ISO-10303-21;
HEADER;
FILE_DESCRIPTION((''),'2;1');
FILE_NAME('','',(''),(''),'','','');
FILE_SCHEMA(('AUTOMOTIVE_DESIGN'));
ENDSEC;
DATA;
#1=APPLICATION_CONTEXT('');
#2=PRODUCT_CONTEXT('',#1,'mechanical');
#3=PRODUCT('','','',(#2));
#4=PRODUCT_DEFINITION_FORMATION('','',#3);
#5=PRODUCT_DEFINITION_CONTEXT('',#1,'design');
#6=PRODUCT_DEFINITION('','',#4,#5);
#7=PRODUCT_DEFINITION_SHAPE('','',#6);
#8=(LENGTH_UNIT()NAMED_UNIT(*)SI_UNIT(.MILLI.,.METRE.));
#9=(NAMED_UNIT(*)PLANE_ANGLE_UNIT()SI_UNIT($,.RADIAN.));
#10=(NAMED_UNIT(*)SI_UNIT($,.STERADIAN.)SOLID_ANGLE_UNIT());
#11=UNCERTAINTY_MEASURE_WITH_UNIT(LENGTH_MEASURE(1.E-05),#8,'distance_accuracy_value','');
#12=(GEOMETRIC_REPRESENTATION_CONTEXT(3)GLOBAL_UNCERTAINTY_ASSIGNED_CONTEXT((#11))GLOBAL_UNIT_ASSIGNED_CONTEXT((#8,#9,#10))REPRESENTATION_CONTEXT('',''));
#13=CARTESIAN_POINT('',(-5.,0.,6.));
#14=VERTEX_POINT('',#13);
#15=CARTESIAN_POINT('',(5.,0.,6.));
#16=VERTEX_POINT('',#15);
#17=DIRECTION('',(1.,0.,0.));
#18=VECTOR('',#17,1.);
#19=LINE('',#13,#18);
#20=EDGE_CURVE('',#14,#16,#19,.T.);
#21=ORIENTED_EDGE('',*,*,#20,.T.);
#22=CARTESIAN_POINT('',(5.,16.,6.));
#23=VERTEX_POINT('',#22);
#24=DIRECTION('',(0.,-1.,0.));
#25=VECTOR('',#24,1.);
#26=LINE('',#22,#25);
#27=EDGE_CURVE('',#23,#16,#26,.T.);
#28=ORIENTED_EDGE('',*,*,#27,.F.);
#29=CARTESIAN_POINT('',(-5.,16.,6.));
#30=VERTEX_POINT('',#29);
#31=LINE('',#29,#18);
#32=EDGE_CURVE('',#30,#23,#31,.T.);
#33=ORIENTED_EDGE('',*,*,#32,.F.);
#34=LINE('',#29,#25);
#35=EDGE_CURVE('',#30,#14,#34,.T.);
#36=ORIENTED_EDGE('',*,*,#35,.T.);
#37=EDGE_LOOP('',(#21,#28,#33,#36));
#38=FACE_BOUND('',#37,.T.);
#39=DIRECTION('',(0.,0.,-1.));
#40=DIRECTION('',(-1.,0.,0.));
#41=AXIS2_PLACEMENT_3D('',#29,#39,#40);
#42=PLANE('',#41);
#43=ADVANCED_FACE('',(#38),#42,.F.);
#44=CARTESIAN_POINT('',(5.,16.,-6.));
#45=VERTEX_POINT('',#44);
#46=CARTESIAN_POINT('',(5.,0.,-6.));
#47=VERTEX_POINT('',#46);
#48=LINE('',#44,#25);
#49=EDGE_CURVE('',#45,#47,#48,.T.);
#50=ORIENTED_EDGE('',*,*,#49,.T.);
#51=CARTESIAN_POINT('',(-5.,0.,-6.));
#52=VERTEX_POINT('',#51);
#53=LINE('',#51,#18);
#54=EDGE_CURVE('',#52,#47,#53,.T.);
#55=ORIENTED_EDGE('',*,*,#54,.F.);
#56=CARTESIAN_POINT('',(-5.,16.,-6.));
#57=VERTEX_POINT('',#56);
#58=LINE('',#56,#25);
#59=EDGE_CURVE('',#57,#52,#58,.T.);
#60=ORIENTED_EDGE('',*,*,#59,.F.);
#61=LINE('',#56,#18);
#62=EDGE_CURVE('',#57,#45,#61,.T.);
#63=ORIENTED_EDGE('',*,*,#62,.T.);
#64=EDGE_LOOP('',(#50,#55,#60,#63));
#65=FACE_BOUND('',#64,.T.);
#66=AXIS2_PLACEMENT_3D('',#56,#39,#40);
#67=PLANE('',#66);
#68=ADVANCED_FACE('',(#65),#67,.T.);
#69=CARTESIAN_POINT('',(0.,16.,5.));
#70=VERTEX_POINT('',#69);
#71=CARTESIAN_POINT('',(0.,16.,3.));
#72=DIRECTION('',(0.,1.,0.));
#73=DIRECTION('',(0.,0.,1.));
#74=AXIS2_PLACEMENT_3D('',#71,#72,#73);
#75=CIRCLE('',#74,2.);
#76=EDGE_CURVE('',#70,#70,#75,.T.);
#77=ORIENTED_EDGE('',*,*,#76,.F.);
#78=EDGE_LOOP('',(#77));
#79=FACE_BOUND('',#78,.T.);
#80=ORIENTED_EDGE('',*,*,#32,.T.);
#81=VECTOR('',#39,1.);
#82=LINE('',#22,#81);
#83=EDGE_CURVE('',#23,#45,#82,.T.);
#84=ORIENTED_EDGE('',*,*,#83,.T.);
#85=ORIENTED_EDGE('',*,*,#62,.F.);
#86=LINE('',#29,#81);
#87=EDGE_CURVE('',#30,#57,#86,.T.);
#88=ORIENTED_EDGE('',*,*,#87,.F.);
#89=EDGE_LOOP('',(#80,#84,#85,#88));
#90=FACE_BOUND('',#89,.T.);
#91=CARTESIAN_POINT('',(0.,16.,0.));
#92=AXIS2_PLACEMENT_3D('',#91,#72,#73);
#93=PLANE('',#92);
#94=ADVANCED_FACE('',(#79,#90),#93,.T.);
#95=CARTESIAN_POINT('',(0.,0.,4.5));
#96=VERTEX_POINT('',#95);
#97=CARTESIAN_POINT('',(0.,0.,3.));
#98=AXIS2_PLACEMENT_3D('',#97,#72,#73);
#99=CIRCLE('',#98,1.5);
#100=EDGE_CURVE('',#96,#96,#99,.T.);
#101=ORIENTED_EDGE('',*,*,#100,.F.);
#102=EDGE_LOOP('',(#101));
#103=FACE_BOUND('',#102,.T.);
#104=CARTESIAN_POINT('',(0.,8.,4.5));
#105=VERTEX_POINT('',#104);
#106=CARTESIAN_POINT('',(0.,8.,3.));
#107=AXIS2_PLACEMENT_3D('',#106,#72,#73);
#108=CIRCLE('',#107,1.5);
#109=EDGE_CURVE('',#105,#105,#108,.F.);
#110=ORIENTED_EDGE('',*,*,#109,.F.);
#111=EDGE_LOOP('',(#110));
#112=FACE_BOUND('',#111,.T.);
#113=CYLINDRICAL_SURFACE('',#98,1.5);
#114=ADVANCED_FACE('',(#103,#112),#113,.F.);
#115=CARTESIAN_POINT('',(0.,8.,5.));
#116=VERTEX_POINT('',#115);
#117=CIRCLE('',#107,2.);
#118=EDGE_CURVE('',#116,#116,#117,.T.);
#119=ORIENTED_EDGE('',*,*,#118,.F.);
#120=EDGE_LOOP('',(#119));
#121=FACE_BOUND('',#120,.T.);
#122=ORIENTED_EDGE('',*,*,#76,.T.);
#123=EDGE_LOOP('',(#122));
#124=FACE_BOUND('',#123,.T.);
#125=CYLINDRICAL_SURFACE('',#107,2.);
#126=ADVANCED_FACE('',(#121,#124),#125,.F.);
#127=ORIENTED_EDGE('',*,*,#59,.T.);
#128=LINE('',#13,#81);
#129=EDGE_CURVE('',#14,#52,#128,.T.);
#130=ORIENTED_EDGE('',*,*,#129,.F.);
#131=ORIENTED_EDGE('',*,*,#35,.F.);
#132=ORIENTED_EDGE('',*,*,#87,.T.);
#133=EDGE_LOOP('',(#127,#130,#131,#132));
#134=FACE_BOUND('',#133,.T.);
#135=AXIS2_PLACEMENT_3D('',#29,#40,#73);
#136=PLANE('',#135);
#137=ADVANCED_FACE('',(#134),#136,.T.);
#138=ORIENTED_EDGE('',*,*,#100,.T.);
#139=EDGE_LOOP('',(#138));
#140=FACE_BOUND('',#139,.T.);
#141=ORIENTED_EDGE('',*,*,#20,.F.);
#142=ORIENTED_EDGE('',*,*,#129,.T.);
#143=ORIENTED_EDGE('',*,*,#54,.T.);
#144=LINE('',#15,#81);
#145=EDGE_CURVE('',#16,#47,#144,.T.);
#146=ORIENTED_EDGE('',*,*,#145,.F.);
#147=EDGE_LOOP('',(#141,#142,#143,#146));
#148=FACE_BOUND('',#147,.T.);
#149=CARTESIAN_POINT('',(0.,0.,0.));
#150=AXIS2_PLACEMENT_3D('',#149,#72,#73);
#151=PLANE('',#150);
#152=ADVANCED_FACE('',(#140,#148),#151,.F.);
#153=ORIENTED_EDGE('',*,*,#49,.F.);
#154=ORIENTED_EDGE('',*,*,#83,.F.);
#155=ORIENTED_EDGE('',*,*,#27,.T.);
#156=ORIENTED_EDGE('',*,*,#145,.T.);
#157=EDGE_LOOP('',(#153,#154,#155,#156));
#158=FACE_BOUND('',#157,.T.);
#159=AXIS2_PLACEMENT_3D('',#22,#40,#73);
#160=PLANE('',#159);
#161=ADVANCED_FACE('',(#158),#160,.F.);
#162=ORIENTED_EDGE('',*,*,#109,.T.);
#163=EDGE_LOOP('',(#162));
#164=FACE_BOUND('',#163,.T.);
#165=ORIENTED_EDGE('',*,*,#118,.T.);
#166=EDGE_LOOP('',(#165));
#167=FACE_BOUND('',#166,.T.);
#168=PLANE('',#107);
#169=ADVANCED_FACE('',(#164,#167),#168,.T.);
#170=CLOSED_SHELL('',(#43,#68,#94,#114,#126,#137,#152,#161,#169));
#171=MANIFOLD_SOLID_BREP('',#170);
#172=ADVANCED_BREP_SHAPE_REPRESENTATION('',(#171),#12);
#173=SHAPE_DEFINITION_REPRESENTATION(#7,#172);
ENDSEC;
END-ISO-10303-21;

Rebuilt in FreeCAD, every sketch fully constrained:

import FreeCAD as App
import Part
import Sketcher
from FreeCAD import Vector


def add_polygon(sketch, points):
    """Adds a closed chain of lines whose ends are joined by coincident constraints."""
    first, n = sketch.GeometryCount, len(points)
    for a, b in zip(points, points[1:] + points[:1]):
        sketch.addGeometry(Part.LineSegment(App.Vector(*a, 0), App.Vector(*b, 0)), False)
    for i in range(n):
        sketch.addConstraint(Sketcher.Constraint("Coincident", first + i, 2, first + (i + 1) % n, 1))

doc = App.newDocument("Part")
params = doc.addObject("Spreadsheet::Sheet", "Params")
for row, (alias, value) in enumerate([
    ("sketch1_width", "10 mm"),
    ("sketch1_height", "12 mm"),
    ("pad1_length", "16 mm"),
    ("sketch2_diameter", "3 mm"),
    ("pocket1_length", "16 mm"),
    ("sketch3_diameter", "4 mm"),
    ("pocket2_length", "8 mm"),
], start=1):
    params.set(f"A{row}", alias)
    params.set(f"B{row}", "=" + value)
    params.setAlias(f"B{row}", alias)

body = doc.addObject("PartDesign::Body", "Body")

sketch1 = body.newObject("Sketcher::SketchObject", "Sketch")
sketch1.AttachmentSupport = (doc.getObject("XZ_Plane"), [""])
sketch1.MapMode = "FlatFace"
add_polygon(sketch1, [(-5, -6), (-5, 6), (5, 6), (5, -6)])
sketch1.addConstraint([
    Sketcher.Constraint("Vertical", 0),
    Sketcher.Constraint("Horizontal", 1),
    Sketcher.Constraint("Vertical", 2),
    Sketcher.Constraint("Horizontal", 3),
    Sketcher.Constraint("Symmetric", 0, 2, 2, 2, -1, 1),
    Sketcher.Constraint("DistanceX", 1, 1, 1, 2, 10.0),
    Sketcher.Constraint("DistanceY", 0, 1, 0, 2, 12.0),
])
sketch1.setExpression("Constraints[9]", "Params.sketch1_width")
sketch1.setExpression("Constraints[10]", "Params.sketch1_height")
pad1 = body.newObject("PartDesign::Pad", "Pad")
pad1.Profile = sketch1
pad1.setExpression("Length", "Params.pad1_length")
pad1.Reversed = True

sketch2 = body.newObject("Sketcher::SketchObject", "Sketch001")
sketch2.AttachmentSupport = (doc.getObject("XZ_Plane"), [""])
sketch2.MapMode = "FlatFace"
sketch2.AttachmentOffset = App.Placement(Vector(0, 0, -16), App.Rotation())
sketch2.addGeometry(Part.Circle(Vector(0, 3, 0), Vector(0, 0, 1), 1.5), False)
sketch2.addConstraint([
    Sketcher.Constraint("PointOnObject", 0, 3, -2),
    Sketcher.Constraint("Diameter", 0, 3.0),
    Sketcher.Constraint("DistanceY", -1, 1, 0, 3, 3.0),
])
sketch2.setExpression("Constraints[1]", "Params.sketch2_diameter")
pocket1 = body.newObject("PartDesign::Pocket", "Pocket")
pocket1.Profile = sketch2
pocket1.setExpression("Length", "Params.pocket1_length")
pocket1.Reversed = True

sketch3 = body.newObject("Sketcher::SketchObject", "Sketch002")
sketch3.AttachmentSupport = (doc.getObject("XZ_Plane"), [""])
sketch3.MapMode = "FlatFace"
sketch3.AttachmentOffset = App.Placement(Vector(0, 0, -16), App.Rotation())
sketch3.addGeometry(Part.Circle(Vector(0, 3, 0), Vector(0, 0, 1), 2), False)
sketch3.addConstraint([
    Sketcher.Constraint("PointOnObject", 0, 3, -2),
    Sketcher.Constraint("Diameter", 0, 4.0),
    Sketcher.Constraint("DistanceY", -1, 1, 0, 3, 3.0),
])
sketch3.setExpression("Constraints[1]", "Params.sketch3_diameter")
pocket2 = body.newObject("PartDesign::Pocket", "Pocket001")
pocket2.Profile = sketch3
pocket2.setExpression("Length", "Params.pocket2_length")
pocket2.Reversed = True

doc.recompute()
